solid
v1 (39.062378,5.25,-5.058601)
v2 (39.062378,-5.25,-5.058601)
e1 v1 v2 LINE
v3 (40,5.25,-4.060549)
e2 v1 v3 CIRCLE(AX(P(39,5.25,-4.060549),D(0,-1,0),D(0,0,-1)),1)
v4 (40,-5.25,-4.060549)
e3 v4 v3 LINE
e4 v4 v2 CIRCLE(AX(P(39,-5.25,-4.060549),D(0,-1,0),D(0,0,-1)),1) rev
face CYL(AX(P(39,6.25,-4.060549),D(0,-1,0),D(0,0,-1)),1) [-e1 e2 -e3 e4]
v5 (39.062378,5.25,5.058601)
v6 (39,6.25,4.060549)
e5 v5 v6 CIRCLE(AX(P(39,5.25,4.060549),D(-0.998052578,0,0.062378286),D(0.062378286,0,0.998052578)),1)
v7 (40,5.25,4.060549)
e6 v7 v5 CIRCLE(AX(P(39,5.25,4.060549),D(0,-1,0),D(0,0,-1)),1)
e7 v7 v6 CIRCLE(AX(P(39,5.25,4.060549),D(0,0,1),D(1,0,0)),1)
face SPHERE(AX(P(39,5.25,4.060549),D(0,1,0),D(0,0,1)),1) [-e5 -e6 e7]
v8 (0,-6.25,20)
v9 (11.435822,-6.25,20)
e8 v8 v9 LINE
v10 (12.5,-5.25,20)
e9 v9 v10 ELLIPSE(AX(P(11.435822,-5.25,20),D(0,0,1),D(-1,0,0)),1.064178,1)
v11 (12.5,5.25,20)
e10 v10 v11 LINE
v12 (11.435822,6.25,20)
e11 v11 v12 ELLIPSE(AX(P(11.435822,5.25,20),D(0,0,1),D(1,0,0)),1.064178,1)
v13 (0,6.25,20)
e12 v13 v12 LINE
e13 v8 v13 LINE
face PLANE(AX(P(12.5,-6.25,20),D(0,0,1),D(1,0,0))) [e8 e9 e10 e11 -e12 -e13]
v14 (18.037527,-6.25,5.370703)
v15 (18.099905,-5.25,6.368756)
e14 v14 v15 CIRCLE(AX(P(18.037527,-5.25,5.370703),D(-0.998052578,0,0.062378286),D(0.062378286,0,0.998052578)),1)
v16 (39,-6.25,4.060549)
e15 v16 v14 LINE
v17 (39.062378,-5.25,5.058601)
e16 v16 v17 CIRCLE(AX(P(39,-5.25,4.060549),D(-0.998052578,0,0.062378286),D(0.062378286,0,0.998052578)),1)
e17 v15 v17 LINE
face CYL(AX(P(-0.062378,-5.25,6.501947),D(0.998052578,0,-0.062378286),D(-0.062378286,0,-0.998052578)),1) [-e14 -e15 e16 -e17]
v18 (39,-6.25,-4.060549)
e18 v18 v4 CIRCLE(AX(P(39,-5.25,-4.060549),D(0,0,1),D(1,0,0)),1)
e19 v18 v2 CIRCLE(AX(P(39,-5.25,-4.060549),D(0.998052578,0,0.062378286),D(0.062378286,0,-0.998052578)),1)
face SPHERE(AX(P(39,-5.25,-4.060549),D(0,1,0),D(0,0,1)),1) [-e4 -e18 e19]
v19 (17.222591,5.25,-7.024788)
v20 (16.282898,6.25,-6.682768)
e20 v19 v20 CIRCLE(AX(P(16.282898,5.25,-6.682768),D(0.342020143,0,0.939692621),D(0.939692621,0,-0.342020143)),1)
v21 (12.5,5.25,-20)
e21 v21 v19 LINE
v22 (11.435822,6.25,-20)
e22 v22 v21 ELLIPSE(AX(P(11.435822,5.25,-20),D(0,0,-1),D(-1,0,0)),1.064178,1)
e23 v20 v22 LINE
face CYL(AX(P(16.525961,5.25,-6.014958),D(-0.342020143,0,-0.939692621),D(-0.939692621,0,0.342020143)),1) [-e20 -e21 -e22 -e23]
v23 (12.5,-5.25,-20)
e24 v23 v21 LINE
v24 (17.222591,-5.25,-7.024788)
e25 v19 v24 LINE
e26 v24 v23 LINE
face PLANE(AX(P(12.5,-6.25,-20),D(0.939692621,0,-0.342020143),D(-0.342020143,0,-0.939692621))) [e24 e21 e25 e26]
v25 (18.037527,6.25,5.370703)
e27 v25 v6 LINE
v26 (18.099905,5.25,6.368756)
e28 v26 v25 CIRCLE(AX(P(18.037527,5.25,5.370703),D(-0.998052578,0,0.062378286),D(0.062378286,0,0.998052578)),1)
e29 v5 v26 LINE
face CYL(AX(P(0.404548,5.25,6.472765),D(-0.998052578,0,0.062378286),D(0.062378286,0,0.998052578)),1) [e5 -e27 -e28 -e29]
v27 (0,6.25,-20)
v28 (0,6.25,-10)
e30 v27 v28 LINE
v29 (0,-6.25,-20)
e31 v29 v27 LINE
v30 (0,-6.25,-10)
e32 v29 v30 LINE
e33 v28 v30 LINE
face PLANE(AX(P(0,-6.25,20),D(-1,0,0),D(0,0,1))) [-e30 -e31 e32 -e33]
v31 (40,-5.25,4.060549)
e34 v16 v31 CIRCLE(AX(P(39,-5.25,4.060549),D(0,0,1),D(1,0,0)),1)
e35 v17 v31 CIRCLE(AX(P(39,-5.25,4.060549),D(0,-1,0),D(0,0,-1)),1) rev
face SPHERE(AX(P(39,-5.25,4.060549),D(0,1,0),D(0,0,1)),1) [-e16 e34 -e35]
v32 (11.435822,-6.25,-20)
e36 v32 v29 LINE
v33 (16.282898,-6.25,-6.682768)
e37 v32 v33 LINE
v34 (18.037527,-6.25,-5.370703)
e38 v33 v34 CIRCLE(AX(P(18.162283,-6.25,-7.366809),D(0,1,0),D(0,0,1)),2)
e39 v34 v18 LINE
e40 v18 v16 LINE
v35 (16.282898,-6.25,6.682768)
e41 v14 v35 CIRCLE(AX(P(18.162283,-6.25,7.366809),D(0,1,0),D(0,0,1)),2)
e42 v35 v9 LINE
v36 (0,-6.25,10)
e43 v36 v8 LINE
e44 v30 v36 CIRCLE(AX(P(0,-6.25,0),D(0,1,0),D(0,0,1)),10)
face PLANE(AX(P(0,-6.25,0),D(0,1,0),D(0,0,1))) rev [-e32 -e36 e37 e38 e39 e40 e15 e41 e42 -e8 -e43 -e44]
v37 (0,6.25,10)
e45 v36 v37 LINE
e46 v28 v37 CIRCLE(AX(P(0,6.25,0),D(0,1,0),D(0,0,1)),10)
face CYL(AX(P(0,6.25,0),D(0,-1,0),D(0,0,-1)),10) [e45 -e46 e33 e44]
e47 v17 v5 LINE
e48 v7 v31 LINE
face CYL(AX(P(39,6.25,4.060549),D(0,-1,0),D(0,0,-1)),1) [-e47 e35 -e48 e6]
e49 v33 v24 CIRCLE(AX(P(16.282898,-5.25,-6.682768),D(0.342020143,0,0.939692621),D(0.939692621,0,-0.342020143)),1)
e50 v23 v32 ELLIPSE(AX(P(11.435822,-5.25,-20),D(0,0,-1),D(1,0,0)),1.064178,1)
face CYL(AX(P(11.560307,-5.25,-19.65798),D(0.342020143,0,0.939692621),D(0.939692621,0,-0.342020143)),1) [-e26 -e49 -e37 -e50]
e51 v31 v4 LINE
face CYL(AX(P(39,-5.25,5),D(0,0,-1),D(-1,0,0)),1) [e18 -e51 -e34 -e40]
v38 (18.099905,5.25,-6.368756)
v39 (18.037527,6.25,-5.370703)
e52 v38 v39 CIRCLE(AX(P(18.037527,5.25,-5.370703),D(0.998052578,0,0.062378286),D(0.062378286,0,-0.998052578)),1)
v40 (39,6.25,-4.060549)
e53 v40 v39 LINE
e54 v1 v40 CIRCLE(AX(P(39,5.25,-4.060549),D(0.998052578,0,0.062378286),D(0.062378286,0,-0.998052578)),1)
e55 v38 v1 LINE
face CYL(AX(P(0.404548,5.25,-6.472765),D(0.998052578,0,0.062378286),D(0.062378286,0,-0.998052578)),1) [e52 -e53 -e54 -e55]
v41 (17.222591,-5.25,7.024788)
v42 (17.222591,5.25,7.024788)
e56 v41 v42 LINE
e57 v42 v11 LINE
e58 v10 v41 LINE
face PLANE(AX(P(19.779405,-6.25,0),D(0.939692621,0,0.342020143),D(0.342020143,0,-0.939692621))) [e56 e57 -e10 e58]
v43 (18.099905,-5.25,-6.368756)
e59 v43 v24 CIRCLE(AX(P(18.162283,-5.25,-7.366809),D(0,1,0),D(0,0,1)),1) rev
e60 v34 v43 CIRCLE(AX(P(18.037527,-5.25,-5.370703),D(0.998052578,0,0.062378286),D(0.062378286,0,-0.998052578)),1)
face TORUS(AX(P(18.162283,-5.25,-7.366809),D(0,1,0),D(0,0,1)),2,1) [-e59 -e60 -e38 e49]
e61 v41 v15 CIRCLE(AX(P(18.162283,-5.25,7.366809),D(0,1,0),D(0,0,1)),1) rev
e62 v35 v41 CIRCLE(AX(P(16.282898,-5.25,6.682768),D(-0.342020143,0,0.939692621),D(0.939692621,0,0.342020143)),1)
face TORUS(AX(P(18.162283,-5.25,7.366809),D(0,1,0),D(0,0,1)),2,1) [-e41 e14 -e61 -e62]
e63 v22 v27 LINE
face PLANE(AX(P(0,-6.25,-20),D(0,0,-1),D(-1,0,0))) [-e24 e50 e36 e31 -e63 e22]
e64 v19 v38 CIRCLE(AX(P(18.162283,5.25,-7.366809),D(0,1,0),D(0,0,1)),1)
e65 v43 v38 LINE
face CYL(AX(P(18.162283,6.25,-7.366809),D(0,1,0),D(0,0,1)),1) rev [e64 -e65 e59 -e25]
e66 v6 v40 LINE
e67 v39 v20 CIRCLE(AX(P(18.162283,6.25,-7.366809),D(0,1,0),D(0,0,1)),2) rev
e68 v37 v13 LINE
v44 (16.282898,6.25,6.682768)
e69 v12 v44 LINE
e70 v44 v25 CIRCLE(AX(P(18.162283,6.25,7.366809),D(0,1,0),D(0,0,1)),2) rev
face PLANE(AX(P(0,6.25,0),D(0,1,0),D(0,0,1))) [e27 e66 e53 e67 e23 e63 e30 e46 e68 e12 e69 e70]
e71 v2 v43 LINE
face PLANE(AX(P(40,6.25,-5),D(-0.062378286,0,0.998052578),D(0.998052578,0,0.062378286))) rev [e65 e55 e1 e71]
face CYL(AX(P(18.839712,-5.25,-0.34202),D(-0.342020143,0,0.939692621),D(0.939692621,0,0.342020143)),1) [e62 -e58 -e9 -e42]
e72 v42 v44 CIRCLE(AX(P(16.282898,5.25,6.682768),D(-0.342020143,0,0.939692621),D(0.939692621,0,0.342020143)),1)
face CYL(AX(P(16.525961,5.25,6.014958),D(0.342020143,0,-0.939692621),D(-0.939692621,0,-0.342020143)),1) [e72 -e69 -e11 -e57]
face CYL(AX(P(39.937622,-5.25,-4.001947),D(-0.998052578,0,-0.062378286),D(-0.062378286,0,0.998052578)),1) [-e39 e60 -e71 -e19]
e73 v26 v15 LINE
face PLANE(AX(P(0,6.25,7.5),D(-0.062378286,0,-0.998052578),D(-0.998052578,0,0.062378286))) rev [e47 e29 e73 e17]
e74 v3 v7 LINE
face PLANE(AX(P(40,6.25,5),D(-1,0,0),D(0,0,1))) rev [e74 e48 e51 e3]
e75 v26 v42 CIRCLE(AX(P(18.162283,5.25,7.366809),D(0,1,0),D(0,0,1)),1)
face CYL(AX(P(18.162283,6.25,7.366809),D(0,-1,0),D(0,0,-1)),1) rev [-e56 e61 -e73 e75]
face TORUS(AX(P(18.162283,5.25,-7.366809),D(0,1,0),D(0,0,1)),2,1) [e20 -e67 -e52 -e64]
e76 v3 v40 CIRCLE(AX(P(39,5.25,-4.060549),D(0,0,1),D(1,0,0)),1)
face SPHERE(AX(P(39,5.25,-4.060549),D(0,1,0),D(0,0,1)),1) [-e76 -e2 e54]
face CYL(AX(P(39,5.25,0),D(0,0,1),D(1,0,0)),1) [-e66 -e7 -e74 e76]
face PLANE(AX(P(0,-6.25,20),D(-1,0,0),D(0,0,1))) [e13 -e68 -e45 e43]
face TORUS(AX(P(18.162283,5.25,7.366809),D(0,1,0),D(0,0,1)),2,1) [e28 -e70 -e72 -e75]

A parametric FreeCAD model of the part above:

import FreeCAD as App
import Part
import Sketcher

V = App.Vector
Q = App.Units.Quantity


def edges_at(feature, points):
    """Names of the edges that pass closest to the given points."""
    edges = feature.Shape.Edges
    near = lambda p: min(range(len(edges)), key=lambda i: edges[i].distToShape(Part.Vertex(*p))[0])
    return sorted({f"Edge{near(p) + 1}" for p in points})

doc = App.newDocument("Part")
body = doc.addObject("PartDesign::Body", "Body")

# Sketch on XZ plane
sketch1 = body.newObject("Sketcher::SketchObject", "Sketch")
sketch1.AttachmentSupport = (doc.getObject("XZ_Plane"), [""])
sketch1.MapMode = "FlatFace"
sketch1.addGeometry(Part.Circle(V(0, 0, 0), V(0, 0, 1), 10), False)
sketch1.addConstraint(Sketcher.Constraint("Coincident", 0, 3, -1, 1))
sketch1.addConstraint(Sketcher.Constraint("Diameter", 0, Q("20 mm")))
pad1 = body.newObject("PartDesign::Pad", "Pad")
pad1.Profile = sketch1
pad1.Length = 12.5
pad1.Midplane = True

# Sketch on XZ plane
sketch2 = body.newObject("Sketcher::SketchObject", "Sketch001")
sketch2.AttachmentSupport = (doc.getObject("XZ_Plane"), [""])
sketch2.MapMode = "FlatFace"
sketch2.addGeometry(Part.LineSegment(V(0, 8, 0), V(40, 5, 0)), False)
sketch2.addGeometry(Part.LineSegment(V(40, 5, 0), V(40, -5, 0)), False)
sketch2.addGeometry(Part.LineSegment(V(40, -5, 0), V(0, -8, 0)), False)
sketch2.addGeometry(Part.LineSegment(V(0, -8, 0), V(0, 8, 0)), False)
sketch2.addConstraint(Sketcher.Constraint("Coincident", 0, 2, 1, 1))
sketch2.addConstraint(Sketcher.Constraint("Coincident", 1, 2, 2, 1))
sketch2.addConstraint(Sketcher.Constraint("Coincident", 2, 2, 3, 1))
sketch2.addConstraint(Sketcher.Constraint("Coincident", 3, 2, 0, 1))
sketch2.addConstraint(Sketcher.Constraint("Vertical", 1))
sketch2.addConstraint(Sketcher.Constraint("Vertical", 3))
sketch2.addConstraint(Sketcher.Constraint("Symmetric", 2, 2, 3, 2, -1, 1))
sketch2.addConstraint(Sketcher.Constraint("Equal", 0, 2))
sketch2.addConstraint(Sketcher.Constraint("DistanceY", 1, 2, 1, 1, Q("10 mm")))
sketch2.addConstraint(Sketcher.Constraint("DistanceY", 3, 1, 3, 2, Q("15 mm")))
sketch2.addConstraint(Sketcher.Constraint("DistanceX", -1, 1, 0, 2, Q("40 mm")))
pad2 = body.newObject("PartDesign::Pad", "Pad001")
pad2.Profile = sketch2
pad2.Length = 12.5
pad2.Midplane = True

# Sketch on XZ plane
sketch3 = body.newObject("Sketcher::SketchObject", "Sketch002")
sketch3.AttachmentSupport = (doc.getObject("XZ_Plane"), [""])
sketch3.MapMode = "FlatFace"
sketch3.AttachmentOffset = App.Placement(V(0, 0, -6.25), App.Rotation())
sketch3.addGeometry(Part.LineSegment(V(12, 20, 0), V(20, 0, 0)), False)
sketch3.addGeometry(Part.LineSegment(V(20, 0, 0), V(12, -20, 0)), False)
sketch3.addGeometry(Part.LineSegment(V(12, -20, 0), V(0, -20, 0)), False)
sketch3.addGeometry(Part.LineSegment(V(0, -20, 0), V(0, 20, 0)), False)
sketch3.addGeometry(Part.LineSegment(V(0, 20, 0), V(12, 20, 0)), False)
sketch3.addConstraint(Sketcher.Constraint("Coincident", 0, 2, 1, 1))
sketch3.addConstraint(Sketcher.Constraint("Coincident", 1, 2, 2, 1))
sketch3.addConstraint(Sketcher.Constraint("Coincident", 2, 2, 3, 1))
sketch3.addConstraint(Sketcher.Constraint("Coincident", 3, 2, 4, 1))
sketch3.addConstraint(Sketcher.Constraint("Coincident", 4, 2, 0, 1))
sketch3.addConstraint(Sketcher.Constraint("Horizontal", 2))
sketch3.addConstraint(Sketcher.Constraint("Vertical", 3))
sketch3.addConstraint(Sketcher.Constraint("Horizontal", 4))
sketch3.addConstraint(Sketcher.Constraint("Symmetric", 2, 2, 3, 2, -1, 1))
sketch3.addConstraint(Sketcher.Constraint("PointOnObject", 0, 2, -1))
sketch3.addConstraint(Sketcher.Constraint("Vertical", 1, 2, 4, 2))
sketch3.addConstraint(Sketcher.Constraint("DistanceY", 3, 1, 3, 2, Q("40 mm")))
sketch3.addConstraint(Sketcher.Constraint("Angle", 0, Q("-70 deg")))
sketch3.addConstraint(Sketcher.Constraint("DistanceX", 2, 2, 2, 1, Q("12.5 mm")))
pad3 = body.newObject("PartDesign::Pad", "Pad002")
pad3.Profile = sketch3
pad3.Type = "UpToLast"
doc.recompute()

fillet = body.newObject("PartDesign::Fillet", "Fillet")
fillet.Base = (pad3, edges_at(pad3, [
    (40, 0, -5),
    (40, 0, 5),
    (17.447, 0, -6.41),
    (17.447, 0, 6.41),
]))
fillet.Radius = 1
doc.recompute()

fillet2 = body.newObject("PartDesign::Fillet", "Fillet001")
fillet2.Base = (fillet, edges_at(fillet, [
    (14.861, -6.25, 13.512),
    (14.861, 6.25, 13.512),
    (28.581, 6.25, 5.714),
    (28.581, -6.25, 5.714),
    (28.581, -6.25, -5.714),
    (28.581, 6.25, -5.714),
    (14.861, -6.25, -13.512),
    (14.861, 6.25, -13.512),
    (40, -6.25, 0),
    (39.729, -6.25, 4.745),
    (39.729, -6.25, -4.745),
    (40, 6.25, 0),
    (39.729, 6.25, 4.745),
    (39.729, 6.25, -4.745),
    (17.563, -6.25, 6.566),
    (17.563, 6.25, 6.566),
    (17.563, 6.25, -6.566),
    (17.563, -6.25, -6.566),
]))
fillet2.Radius = 1

doc.recompute()
